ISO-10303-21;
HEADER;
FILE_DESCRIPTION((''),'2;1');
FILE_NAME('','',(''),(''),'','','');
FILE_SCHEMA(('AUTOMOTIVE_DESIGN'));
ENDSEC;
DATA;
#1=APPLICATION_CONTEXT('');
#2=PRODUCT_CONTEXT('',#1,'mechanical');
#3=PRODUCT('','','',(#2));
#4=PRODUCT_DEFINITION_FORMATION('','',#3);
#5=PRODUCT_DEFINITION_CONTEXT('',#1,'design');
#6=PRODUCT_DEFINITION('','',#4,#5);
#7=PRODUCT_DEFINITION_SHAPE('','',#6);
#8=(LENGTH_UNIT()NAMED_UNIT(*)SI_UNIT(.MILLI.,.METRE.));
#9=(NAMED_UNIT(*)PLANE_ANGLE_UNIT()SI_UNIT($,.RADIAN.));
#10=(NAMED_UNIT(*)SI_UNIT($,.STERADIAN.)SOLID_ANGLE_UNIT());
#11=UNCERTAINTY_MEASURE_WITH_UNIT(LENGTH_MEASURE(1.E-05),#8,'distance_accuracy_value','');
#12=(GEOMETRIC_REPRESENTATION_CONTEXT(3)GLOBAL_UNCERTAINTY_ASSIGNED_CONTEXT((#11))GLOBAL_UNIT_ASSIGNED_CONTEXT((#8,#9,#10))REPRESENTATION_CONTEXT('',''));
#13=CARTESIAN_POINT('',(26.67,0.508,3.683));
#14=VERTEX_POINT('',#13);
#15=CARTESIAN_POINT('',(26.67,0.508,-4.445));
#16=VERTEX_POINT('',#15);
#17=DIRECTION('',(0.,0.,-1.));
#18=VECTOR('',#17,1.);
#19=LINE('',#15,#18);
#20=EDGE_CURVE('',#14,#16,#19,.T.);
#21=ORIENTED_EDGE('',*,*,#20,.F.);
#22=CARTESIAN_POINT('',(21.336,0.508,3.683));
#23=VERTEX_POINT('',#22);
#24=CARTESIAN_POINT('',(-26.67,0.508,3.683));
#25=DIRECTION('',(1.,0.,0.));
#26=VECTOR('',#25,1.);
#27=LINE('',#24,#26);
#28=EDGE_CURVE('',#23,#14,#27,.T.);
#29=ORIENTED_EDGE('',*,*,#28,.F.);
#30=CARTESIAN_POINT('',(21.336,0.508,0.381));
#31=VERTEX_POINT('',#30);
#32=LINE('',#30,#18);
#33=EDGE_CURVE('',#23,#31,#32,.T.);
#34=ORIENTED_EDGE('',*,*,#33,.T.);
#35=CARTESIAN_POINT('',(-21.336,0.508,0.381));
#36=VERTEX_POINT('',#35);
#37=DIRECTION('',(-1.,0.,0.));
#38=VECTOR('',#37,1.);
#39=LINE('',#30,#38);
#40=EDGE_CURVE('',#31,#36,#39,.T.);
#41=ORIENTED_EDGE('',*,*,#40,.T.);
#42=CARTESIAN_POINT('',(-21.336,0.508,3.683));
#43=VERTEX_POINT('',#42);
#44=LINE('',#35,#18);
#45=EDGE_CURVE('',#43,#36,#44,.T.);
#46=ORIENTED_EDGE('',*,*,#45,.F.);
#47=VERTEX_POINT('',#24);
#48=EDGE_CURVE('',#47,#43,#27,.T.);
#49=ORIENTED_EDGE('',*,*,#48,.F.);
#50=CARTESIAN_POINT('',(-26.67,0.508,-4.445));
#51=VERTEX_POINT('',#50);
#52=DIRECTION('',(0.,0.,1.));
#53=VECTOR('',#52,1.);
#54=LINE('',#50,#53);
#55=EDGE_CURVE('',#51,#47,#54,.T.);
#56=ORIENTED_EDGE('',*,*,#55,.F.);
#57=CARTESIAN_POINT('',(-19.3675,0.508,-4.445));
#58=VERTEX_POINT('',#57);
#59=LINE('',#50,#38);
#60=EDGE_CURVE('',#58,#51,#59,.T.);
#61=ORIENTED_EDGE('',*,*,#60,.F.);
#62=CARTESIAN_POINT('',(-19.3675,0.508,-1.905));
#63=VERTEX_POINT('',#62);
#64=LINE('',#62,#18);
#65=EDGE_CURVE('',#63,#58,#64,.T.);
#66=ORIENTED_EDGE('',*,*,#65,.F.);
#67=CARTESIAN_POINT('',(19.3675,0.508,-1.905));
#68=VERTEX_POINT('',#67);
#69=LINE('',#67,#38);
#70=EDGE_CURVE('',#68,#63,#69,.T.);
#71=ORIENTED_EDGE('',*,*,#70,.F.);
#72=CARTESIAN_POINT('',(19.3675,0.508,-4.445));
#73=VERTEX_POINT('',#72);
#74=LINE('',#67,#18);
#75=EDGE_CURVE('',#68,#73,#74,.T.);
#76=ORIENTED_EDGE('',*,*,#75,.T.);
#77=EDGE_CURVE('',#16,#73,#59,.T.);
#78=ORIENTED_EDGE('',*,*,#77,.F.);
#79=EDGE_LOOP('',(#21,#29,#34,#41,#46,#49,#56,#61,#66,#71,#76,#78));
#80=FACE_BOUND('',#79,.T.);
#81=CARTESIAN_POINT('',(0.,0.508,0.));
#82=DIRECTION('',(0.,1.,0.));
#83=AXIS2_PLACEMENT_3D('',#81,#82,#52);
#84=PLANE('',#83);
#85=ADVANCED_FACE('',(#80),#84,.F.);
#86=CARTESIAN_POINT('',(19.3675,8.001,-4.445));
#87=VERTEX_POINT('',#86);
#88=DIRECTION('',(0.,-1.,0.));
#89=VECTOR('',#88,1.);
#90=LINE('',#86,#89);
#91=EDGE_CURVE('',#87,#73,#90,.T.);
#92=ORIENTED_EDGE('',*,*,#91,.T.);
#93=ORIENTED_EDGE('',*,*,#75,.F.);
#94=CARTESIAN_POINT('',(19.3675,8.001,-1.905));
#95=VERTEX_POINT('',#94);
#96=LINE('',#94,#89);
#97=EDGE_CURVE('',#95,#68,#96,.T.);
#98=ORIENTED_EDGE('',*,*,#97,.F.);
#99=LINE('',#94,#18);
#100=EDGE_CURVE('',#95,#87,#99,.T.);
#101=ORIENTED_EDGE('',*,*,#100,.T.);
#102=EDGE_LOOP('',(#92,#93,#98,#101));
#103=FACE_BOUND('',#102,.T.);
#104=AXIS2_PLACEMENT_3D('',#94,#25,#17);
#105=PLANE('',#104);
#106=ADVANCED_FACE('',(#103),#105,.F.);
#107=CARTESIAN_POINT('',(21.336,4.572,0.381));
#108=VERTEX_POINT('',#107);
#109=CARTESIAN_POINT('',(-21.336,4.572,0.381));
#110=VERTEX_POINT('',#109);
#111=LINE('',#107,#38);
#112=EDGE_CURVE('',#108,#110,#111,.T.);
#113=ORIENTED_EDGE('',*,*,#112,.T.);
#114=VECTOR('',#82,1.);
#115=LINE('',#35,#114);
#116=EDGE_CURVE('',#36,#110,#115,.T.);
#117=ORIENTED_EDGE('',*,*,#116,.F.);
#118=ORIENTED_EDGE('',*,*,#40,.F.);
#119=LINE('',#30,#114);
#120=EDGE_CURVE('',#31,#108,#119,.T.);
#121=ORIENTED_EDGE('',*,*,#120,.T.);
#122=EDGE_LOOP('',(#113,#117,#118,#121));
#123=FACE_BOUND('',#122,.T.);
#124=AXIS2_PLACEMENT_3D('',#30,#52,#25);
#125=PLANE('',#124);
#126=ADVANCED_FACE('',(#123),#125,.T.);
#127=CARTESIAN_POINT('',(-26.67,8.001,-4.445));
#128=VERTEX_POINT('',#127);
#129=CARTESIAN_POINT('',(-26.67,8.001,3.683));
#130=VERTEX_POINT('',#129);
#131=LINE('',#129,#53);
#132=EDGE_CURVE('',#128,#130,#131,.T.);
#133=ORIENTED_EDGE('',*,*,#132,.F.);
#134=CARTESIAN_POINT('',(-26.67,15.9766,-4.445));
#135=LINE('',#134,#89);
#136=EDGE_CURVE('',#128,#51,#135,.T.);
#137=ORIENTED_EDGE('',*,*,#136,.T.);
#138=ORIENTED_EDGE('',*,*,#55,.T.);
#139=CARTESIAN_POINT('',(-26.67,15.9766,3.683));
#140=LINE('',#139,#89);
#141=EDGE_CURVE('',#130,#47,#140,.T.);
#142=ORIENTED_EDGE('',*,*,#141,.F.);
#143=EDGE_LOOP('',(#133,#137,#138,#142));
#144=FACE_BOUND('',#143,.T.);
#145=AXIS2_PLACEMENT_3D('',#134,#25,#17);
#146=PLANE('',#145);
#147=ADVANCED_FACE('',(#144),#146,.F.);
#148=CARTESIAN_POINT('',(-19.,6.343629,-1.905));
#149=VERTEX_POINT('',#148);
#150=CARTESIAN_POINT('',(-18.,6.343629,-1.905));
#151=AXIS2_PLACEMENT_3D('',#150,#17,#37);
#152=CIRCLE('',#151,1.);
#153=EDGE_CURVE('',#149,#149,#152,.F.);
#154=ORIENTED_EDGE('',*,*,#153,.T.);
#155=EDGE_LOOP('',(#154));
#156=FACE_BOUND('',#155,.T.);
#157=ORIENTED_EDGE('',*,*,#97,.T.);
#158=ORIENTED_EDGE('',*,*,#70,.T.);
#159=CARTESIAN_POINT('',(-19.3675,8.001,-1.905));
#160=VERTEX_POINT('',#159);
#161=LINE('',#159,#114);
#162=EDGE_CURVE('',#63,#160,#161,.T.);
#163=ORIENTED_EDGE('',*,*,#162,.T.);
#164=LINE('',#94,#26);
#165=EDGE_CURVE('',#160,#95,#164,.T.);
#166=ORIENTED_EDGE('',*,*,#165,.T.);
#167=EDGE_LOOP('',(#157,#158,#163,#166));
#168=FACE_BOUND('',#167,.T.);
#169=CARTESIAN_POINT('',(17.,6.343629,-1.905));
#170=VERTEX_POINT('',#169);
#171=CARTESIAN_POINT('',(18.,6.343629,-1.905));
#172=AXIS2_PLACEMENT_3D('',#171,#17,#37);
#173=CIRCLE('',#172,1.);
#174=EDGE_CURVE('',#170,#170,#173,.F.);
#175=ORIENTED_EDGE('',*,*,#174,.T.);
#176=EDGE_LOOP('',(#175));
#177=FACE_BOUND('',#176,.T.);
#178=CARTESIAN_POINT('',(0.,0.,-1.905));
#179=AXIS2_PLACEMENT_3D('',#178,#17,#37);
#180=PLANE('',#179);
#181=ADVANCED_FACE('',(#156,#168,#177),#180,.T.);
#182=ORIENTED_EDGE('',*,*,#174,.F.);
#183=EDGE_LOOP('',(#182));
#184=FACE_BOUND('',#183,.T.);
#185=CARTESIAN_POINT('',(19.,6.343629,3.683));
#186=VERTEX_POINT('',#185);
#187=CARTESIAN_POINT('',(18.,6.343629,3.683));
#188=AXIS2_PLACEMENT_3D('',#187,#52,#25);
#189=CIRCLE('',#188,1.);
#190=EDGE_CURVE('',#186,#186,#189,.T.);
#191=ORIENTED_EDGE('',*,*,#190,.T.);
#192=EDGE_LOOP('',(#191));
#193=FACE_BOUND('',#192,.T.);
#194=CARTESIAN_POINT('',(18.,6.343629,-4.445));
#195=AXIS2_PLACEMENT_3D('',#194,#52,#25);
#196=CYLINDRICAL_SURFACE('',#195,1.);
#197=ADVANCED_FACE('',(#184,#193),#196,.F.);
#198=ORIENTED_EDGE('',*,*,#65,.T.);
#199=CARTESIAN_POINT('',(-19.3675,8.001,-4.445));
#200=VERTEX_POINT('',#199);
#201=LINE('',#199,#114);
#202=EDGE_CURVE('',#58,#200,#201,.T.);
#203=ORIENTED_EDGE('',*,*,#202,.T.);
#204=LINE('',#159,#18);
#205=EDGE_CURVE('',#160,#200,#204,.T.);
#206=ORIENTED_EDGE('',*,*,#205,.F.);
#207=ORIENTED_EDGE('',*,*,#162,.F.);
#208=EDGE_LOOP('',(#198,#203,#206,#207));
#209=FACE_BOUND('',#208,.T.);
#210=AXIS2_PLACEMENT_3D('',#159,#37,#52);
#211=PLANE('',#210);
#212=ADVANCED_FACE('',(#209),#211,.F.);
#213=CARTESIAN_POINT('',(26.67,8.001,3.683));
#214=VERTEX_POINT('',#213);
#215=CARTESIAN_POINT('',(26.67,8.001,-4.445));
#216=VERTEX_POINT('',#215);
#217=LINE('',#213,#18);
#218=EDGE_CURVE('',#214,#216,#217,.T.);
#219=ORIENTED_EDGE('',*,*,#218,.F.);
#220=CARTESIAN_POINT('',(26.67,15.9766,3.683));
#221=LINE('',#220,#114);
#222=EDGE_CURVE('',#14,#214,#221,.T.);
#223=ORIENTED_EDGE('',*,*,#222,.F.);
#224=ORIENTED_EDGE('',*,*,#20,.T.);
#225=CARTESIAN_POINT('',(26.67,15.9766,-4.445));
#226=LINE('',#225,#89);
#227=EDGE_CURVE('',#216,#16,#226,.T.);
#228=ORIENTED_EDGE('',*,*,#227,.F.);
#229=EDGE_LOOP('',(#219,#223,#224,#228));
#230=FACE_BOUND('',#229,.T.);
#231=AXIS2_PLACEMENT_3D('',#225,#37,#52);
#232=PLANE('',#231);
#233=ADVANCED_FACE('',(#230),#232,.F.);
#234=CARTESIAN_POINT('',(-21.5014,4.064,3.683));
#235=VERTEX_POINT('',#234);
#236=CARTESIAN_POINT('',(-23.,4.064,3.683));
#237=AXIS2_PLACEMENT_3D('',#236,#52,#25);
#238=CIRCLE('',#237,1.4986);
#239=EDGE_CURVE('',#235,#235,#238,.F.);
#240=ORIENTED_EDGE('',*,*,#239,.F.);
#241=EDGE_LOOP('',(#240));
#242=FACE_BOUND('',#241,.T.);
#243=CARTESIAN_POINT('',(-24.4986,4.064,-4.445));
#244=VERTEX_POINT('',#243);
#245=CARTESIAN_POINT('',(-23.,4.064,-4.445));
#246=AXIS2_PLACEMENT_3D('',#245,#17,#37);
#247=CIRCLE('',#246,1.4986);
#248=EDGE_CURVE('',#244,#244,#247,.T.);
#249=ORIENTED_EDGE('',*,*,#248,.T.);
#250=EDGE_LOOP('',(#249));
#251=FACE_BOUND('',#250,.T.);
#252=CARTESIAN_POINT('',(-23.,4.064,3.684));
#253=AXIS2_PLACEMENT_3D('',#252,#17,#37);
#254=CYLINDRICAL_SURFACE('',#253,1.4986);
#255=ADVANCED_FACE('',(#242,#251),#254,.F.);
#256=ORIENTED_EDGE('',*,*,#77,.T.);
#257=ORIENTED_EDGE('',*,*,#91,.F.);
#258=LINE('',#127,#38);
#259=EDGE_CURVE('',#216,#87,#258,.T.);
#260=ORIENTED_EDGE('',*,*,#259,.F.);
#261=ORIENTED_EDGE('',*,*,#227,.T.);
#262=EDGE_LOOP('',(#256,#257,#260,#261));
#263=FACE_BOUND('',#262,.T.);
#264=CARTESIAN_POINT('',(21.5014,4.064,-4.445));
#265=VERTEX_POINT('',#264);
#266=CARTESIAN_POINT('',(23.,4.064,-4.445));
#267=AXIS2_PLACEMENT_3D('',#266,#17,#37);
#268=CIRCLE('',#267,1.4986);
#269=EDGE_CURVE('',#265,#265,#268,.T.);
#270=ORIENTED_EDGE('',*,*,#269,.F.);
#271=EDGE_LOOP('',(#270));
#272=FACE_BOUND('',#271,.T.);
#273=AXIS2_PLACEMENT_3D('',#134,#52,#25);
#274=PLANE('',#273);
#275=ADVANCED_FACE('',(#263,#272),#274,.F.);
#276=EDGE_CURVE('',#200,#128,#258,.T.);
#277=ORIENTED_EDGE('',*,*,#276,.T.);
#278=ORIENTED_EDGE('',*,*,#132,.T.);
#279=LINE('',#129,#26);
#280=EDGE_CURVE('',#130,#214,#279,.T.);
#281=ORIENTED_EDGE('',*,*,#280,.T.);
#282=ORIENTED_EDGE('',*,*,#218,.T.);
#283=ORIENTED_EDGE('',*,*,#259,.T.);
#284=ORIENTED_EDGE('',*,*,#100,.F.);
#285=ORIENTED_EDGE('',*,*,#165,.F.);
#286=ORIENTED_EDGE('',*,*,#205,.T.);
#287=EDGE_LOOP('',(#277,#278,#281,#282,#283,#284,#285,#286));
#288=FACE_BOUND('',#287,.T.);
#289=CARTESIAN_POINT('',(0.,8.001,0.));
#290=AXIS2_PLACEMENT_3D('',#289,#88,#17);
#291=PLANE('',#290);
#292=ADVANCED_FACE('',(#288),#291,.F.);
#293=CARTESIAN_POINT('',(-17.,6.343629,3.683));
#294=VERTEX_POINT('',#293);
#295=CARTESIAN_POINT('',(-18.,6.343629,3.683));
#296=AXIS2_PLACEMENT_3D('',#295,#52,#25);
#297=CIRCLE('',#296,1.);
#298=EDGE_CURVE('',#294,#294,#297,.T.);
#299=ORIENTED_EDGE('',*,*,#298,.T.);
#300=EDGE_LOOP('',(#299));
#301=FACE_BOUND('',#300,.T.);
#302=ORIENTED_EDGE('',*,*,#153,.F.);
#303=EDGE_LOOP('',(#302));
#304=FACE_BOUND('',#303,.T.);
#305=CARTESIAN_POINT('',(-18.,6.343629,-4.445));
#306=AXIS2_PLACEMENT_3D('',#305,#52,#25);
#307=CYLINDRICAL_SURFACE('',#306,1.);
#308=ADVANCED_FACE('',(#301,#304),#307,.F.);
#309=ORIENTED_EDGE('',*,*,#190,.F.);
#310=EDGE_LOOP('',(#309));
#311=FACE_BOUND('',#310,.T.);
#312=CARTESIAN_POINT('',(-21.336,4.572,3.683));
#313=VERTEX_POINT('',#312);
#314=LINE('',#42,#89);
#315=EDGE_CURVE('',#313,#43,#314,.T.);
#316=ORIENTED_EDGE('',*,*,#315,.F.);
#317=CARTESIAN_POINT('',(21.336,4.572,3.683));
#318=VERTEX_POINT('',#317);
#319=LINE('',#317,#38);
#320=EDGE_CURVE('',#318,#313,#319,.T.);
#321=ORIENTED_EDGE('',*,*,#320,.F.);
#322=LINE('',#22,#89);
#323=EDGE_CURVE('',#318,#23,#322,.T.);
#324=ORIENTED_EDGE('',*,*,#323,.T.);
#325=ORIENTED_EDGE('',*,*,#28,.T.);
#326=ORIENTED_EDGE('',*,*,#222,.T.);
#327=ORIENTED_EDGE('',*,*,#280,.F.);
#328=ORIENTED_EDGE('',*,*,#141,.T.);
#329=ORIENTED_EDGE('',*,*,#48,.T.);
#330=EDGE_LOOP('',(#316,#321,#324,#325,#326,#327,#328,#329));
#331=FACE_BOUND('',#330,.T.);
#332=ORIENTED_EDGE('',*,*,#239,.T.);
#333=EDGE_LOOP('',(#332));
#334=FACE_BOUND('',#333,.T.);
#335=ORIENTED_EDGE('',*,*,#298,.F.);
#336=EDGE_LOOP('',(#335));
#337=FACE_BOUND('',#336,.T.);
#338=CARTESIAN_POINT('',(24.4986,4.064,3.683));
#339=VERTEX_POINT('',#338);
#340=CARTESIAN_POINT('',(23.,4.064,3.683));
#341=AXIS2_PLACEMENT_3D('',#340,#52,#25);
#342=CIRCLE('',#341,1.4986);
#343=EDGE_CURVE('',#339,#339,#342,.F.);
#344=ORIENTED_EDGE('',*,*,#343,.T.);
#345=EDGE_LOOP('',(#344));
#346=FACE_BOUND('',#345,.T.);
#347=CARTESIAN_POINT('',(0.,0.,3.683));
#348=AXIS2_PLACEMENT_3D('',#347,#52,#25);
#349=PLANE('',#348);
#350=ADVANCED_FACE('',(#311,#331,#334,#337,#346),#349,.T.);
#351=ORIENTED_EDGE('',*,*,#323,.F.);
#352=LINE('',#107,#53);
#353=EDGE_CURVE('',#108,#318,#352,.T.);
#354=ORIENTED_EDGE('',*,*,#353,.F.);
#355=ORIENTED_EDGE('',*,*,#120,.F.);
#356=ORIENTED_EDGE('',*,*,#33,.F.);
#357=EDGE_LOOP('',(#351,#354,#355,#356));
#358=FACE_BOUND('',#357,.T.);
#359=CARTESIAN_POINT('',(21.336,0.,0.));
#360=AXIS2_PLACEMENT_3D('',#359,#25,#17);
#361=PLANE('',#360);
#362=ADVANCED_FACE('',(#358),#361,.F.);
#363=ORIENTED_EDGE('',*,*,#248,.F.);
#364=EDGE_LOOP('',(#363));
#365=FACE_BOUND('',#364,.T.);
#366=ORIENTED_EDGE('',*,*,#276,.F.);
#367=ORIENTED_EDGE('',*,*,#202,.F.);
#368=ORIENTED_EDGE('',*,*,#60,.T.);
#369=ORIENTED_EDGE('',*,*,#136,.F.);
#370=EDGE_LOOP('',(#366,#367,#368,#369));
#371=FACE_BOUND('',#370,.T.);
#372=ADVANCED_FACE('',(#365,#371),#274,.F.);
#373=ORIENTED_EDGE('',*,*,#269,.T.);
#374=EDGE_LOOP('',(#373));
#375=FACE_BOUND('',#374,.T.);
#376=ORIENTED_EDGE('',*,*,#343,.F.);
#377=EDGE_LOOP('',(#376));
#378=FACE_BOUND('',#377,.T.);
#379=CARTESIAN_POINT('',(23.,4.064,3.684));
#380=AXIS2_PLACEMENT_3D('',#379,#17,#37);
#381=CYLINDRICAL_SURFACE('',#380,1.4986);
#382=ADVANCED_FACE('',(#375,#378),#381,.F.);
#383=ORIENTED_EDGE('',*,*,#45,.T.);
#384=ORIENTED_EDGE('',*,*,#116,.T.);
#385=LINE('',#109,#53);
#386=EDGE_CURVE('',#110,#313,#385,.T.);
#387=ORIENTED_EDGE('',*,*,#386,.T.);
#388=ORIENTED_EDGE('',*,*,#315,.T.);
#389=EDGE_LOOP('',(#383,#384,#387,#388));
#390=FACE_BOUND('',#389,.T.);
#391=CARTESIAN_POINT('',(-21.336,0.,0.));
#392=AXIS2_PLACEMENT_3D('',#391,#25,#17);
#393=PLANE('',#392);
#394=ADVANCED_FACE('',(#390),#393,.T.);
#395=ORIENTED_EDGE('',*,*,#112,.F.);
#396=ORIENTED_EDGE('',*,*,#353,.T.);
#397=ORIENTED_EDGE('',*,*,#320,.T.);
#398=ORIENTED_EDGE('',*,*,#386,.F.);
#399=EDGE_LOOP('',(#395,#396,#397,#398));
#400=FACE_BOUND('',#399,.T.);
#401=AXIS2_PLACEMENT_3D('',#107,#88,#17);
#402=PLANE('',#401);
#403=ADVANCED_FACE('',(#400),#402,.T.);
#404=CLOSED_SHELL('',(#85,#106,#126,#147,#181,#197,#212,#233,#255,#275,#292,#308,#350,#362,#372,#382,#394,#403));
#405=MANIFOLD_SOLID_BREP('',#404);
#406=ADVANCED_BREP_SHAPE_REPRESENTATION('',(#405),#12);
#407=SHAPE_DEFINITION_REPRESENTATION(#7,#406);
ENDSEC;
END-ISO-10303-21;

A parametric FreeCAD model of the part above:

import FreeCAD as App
import Part
import Sketcher
from FreeCAD import Vector
Q = App.Units.Quantity


def add_polygon(sketch, points):
    """Adds a closed chain of lines whose ends are joined by coincident constraints."""
    first, n = sketch.GeometryCount, len(points)
    for a, b in zip(points, points[1:] + points[:1]):
        sketch.addGeometry(Part.LineSegment(App.Vector(*a, 0), App.Vector(*b, 0)), False)
    for i in range(n):
        sketch.addConstraint(Sketcher.Constraint("Coincident", first + i, 2, first + (i + 1) % n, 1))

doc = App.newDocument("Part")
body = doc.addObject("PartDesign::Body", "Body")

sketch1 = body.newObject("Sketcher::SketchObject", "Sketch")
sketch1.AttachmentSupport = (doc.getObject("XZ_Plane"), [""])
sketch1.MapMode = "FlatFace"
sketch1.AttachmentOffset = App.Placement(Vector(0, 0, -0.02 * 25.4), App.Rotation())
add_polygon(sketch1, [(-26.67, -4.445), (-26.67, 4.445), (26.67, 4.445), (26.67, -4.445)])
sketch1.addConstraint(Sketcher.Constraint("Vertical", 0))
sketch1.addConstraint(Sketcher.Constraint("Horizontal", 1))
sketch1.addConstraint(Sketcher.Constraint("Vertical", 2))
sketch1.addConstraint(Sketcher.Constraint("Horizontal", 3))
sketch1.addConstraint(Sketcher.Constraint("Symmetric", 0, 2, 2, 2, -1, 1))
sketch1.addConstraint(Sketcher.Constraint("DistanceX", 1, 1, 1, 2, Q("2.1 in")))
sketch1.addConstraint(Sketcher.Constraint("DistanceY", 0, 1, 0, 2, Q("0.35 in")))
pad1 = body.newObject("PartDesign::Pad", "Pad")
pad1.Profile = sketch1
pad1.Length = Q("0.609 in")
pad1.Reversed = True

sketch2 = body.newObject("Sketcher::SketchObject", "Sketch001")
sketch2.AttachmentSupport = (doc.getObject("XY_Plane"), [""])
sketch2.MapMode = "FlatFace"
sketch2.AttachmentOffset = App.Placement(Vector(0, 0, 0.175 * 25.4), App.Rotation())
add_polygon(sketch2, [(-26.67, 15.9766), (-26.67, 0.508), (26.67, 0.508), (26.67, 15.9766)])
sketch2.addConstraint(Sketcher.Constraint("Vertical", 0))
sketch2.addConstraint(Sketcher.Constraint("Horizontal", 1))
sketch2.addConstraint(Sketcher.Constraint("Vertical", 2))
sketch2.addConstraint(Sketcher.Constraint("Horizontal", 3))
sketch2.addConstraint(Sketcher.Constraint("DistanceX", 1, 1, 1, 2, Q("2.1 in")))
sketch2.addConstraint(Sketcher.Constraint("DistanceY", 0, 2, 0, 1, Q("0.609 in")))
sketch2.addConstraint(Sketcher.Constraint("DistanceX", 0, 2, -1, 1, Q("1.05 in")))
sketch2.addConstraint(Sketcher.Constraint("DistanceY", -1, 1, 0, 2, Q("0.02 in")))
pocket1 = body.newObject("PartDesign::Pocket", "Pocket")
pocket1.Profile = sketch2
pocket1.Length = Q("0.03 in")

sketch3 = body.newObject("Sketcher::SketchObject", "Sketch002")
sketch3.AttachmentSupport = (doc.getObject("XZ_Plane"), [""])
sketch3.MapMode = "FlatFace"
sketch3.AttachmentOffset = App.Placement(Vector(0, 0, -0.629 * 25.4), App.Rotation())
add_polygon(sketch3, [(-26.67, -4.445), (-26.67, 3.683), (26.67, 3.683), (26.67, -4.445)])
sketch3.addConstraint(Sketcher.Constraint("Vertical", 0))
sketch3.addConstraint(Sketcher.Constraint("Horizontal", 1))
sketch3.addConstraint(Sketcher.Constraint("Vertical", 2))
sketch3.addConstraint(Sketcher.Constraint("Horizontal", 3))
sketch3.addConstraint(Sketcher.Constraint("DistanceX", 1, 1, 1, 2, Q("2.1 in")))
sketch3.addConstraint(Sketcher.Constraint("DistanceY", 0, 1, 0, 2, Q("0.32 in")))
sketch3.addConstraint(Sketcher.Constraint("DistanceX", 0, 2, -1, 1, Q("1.05 in")))
sketch3.addConstraint(Sketcher.Constraint("DistanceY", -1, 1, 0, 2, Q("0.145 in")))
pocket2 = body.newObject("PartDesign::Pocket", "Pocket001")
pocket2.Profile = sketch3
pocket2.Length = Q("0.314 in")
pocket2.Reversed = True

sketch4 = body.newObject("Sketcher::SketchObject", "Sketch003")
sketch4.AttachmentSupport = (doc.getObject("YZ_Plane"), [""])
sketch4.MapMode = "FlatFace"
add_polygon(sketch4, [(4.572, 3.683), (0.508, 3.683), (0.508, 0.381), (4.572, 0.381)])
sketch4.addConstraint(Sketcher.Constraint("Horizontal", 0))
sketch4.addConstraint(Sketcher.Constraint("Vertical", 1))
sketch4.addConstraint(Sketcher.Constraint("Horizontal", 2))
sketch4.addConstraint(Sketcher.Constraint("Vertical", 3))
sketch4.addConstraint(Sketcher.Constraint("DistanceX", 0, 2, 0, 1, Q("0.16 in")))
sketch4.addConstraint(Sketcher.Constraint("DistanceY", 1, 2, 1, 1, Q("0.13 in")))
sketch4.addConstraint(Sketcher.Constraint("DistanceX", -1, 1, 0, 2, Q("0.02 in")))
sketch4.addConstraint(Sketcher.Constraint("DistanceY", -1, 1, 0, 2, Q("0.145 in")))
pocket3 = body.newObject("PartDesign::Pocket", "Pocket002")
pocket3.Profile = sketch4
pocket3.Type = "TwoLengths"
pocket3.Length = Q("0.84 in")
pocket3.Length2 = Q("0.84 in")
pocket3.Reversed = True

sketch5 = body.newObject("Sketcher::SketchObject", "Sketch004")
sketch5.AttachmentSupport = (doc.getObject("XY_Plane"), [""])
sketch5.MapMode = "FlatFace"
sketch5.AttachmentOffset = App.Placement(Vector(0, 0, -0.175 * 25.4), App.Rotation())
sketch5.addGeometry(Part.Circle(Vector(-23, 4.064, 0), Vector(0, 0, 1), 1.4986), False)
sketch5.addConstraint(Sketcher.Constraint("Diameter", 0, Q("0.118 in")))
sketch5.addConstraint(Sketcher.Constraint("DistanceY", -1, 1, 0, 3, Q("0.16 in")))
sketch5.addConstraint(Sketcher.Constraint("DistanceX", 0, 3, -1, 1, Q("23 mm")))
pocket4 = body.newObject("PartDesign::Pocket", "Pocket003")
pocket4.Profile = sketch5
pocket4.Type = "UpToFirst"
pocket4.Reversed = True

sketch6 = body.newObject("Sketcher::SketchObject", "Sketch005")
sketch6.AttachmentSupport = (doc.getObject("XY_Plane"), [""])
sketch6.MapMode = "FlatFace"
sketch6.AttachmentOffset = App.Placement(Vector(0, 0, -0.175 * 25.4), App.Rotation())
sketch6.addGeometry(Part.Circle(Vector(23, 4.064, 0), Vector(0, 0, 1), 1.4986), False)
sketch6.addConstraint(Sketcher.Constraint("Diameter", 0, Q("0.118 in")))
sketch6.addConstraint(Sketcher.Constraint("DistanceY", -1, 1, 0, 3, Q("0.16 in")))
sketch6.addConstraint(Sketcher.Constraint("DistanceX", -1, 1, 0, 3, Q("23 mm")))
pocket5 = body.newObject("PartDesign::Pocket", "Pocket004")
pocket5.Profile = sketch6
pocket5.Type = "UpToFirst"
pocket5.Reversed = True

sketch7 = body.newObject("Sketcher::SketchObject", "Sketch006")
sketch7.AttachmentSupport = (doc.getObject("XY_Plane"), [""])
sketch7.MapMode = "FlatFace"
sketch7.addGeometry(Part.Circle(Vector(18, 6.343629, 0), Vector(0, 0, 1), 1), False)
sketch7.addGeometry(Part.Circle(Vector(-18, 6.343629, 0), Vector(0, 0, 1), 1), False)
sketch7.addConstraint(Sketcher.Constraint("Equal", 0, 1))
sketch7.addConstraint(Sketcher.Constraint("Symmetric", 0, 3, 1, 3, -2))
sketch7.addConstraint(Sketcher.Constraint("Diameter", 0, Q("2 mm")))
sketch7.addConstraint(Sketcher.Constraint("DistanceX", -1, 1, 0, 3, Q("18 mm")))
sketch7.addConstraint(Sketcher.Constraint("DistanceY", -1, 1, 0, 3, Q("6.343629 mm")))
pocket6 = body.newObject("PartDesign::Pocket", "Pocket005")
pocket6.Profile = sketch7
pocket6.Type = "ThroughAll"
pocket6.Midplane = True

sketch8 = body.newObject("Sketcher::SketchObject", "Sketch007")
sketch8.AttachmentSupport = (doc.getObject("XY_Plane"), [""])
sketch8.MapMode = "FlatFace"
sketch8.AttachmentOffset = App.Placement(Vector(0, 0, -0.175 * 25.4), App.Rotation())
add_polygon(sketch8, [(19.3675, 8.001), (19.3675, 0.508), (-19.3675, 0.508), (-19.3675, 8.001)])
sketch8.addConstraint(Sketcher.Constraint("Vertical", 0))
sketch8.addConstraint(Sketcher.Constraint("Horizontal", 1))
sketch8.addConstraint(Sketcher.Constraint("Vertical", 2))
sketch8.addConstraint(Sketcher.Constraint("Horizontal", 3))
sketch8.addConstraint(Sketcher.Constraint("DistanceX", 1, 2, 1, 1, Q("1.525 in")))
sketch8.addConstraint(Sketcher.Constraint("DistanceY", 0, 2, 0, 1, Q("0.295 in")))
sketch8.addConstraint(Sketcher.Constraint("DistanceY", -1, 1, 0, 2, Q("0.02 in")))
sketch8.addConstraint(Sketcher.Constraint("DistanceX", -1, 1, 0, 2, Q("0.7625 in")))
pocket7 = body.newObject("PartDesign::Pocket", "Pocket006")
pocket7.Profile = sketch8
pocket7.Length = Q("0.1 in")
pocket7.Reversed = True

doc.recompute()
